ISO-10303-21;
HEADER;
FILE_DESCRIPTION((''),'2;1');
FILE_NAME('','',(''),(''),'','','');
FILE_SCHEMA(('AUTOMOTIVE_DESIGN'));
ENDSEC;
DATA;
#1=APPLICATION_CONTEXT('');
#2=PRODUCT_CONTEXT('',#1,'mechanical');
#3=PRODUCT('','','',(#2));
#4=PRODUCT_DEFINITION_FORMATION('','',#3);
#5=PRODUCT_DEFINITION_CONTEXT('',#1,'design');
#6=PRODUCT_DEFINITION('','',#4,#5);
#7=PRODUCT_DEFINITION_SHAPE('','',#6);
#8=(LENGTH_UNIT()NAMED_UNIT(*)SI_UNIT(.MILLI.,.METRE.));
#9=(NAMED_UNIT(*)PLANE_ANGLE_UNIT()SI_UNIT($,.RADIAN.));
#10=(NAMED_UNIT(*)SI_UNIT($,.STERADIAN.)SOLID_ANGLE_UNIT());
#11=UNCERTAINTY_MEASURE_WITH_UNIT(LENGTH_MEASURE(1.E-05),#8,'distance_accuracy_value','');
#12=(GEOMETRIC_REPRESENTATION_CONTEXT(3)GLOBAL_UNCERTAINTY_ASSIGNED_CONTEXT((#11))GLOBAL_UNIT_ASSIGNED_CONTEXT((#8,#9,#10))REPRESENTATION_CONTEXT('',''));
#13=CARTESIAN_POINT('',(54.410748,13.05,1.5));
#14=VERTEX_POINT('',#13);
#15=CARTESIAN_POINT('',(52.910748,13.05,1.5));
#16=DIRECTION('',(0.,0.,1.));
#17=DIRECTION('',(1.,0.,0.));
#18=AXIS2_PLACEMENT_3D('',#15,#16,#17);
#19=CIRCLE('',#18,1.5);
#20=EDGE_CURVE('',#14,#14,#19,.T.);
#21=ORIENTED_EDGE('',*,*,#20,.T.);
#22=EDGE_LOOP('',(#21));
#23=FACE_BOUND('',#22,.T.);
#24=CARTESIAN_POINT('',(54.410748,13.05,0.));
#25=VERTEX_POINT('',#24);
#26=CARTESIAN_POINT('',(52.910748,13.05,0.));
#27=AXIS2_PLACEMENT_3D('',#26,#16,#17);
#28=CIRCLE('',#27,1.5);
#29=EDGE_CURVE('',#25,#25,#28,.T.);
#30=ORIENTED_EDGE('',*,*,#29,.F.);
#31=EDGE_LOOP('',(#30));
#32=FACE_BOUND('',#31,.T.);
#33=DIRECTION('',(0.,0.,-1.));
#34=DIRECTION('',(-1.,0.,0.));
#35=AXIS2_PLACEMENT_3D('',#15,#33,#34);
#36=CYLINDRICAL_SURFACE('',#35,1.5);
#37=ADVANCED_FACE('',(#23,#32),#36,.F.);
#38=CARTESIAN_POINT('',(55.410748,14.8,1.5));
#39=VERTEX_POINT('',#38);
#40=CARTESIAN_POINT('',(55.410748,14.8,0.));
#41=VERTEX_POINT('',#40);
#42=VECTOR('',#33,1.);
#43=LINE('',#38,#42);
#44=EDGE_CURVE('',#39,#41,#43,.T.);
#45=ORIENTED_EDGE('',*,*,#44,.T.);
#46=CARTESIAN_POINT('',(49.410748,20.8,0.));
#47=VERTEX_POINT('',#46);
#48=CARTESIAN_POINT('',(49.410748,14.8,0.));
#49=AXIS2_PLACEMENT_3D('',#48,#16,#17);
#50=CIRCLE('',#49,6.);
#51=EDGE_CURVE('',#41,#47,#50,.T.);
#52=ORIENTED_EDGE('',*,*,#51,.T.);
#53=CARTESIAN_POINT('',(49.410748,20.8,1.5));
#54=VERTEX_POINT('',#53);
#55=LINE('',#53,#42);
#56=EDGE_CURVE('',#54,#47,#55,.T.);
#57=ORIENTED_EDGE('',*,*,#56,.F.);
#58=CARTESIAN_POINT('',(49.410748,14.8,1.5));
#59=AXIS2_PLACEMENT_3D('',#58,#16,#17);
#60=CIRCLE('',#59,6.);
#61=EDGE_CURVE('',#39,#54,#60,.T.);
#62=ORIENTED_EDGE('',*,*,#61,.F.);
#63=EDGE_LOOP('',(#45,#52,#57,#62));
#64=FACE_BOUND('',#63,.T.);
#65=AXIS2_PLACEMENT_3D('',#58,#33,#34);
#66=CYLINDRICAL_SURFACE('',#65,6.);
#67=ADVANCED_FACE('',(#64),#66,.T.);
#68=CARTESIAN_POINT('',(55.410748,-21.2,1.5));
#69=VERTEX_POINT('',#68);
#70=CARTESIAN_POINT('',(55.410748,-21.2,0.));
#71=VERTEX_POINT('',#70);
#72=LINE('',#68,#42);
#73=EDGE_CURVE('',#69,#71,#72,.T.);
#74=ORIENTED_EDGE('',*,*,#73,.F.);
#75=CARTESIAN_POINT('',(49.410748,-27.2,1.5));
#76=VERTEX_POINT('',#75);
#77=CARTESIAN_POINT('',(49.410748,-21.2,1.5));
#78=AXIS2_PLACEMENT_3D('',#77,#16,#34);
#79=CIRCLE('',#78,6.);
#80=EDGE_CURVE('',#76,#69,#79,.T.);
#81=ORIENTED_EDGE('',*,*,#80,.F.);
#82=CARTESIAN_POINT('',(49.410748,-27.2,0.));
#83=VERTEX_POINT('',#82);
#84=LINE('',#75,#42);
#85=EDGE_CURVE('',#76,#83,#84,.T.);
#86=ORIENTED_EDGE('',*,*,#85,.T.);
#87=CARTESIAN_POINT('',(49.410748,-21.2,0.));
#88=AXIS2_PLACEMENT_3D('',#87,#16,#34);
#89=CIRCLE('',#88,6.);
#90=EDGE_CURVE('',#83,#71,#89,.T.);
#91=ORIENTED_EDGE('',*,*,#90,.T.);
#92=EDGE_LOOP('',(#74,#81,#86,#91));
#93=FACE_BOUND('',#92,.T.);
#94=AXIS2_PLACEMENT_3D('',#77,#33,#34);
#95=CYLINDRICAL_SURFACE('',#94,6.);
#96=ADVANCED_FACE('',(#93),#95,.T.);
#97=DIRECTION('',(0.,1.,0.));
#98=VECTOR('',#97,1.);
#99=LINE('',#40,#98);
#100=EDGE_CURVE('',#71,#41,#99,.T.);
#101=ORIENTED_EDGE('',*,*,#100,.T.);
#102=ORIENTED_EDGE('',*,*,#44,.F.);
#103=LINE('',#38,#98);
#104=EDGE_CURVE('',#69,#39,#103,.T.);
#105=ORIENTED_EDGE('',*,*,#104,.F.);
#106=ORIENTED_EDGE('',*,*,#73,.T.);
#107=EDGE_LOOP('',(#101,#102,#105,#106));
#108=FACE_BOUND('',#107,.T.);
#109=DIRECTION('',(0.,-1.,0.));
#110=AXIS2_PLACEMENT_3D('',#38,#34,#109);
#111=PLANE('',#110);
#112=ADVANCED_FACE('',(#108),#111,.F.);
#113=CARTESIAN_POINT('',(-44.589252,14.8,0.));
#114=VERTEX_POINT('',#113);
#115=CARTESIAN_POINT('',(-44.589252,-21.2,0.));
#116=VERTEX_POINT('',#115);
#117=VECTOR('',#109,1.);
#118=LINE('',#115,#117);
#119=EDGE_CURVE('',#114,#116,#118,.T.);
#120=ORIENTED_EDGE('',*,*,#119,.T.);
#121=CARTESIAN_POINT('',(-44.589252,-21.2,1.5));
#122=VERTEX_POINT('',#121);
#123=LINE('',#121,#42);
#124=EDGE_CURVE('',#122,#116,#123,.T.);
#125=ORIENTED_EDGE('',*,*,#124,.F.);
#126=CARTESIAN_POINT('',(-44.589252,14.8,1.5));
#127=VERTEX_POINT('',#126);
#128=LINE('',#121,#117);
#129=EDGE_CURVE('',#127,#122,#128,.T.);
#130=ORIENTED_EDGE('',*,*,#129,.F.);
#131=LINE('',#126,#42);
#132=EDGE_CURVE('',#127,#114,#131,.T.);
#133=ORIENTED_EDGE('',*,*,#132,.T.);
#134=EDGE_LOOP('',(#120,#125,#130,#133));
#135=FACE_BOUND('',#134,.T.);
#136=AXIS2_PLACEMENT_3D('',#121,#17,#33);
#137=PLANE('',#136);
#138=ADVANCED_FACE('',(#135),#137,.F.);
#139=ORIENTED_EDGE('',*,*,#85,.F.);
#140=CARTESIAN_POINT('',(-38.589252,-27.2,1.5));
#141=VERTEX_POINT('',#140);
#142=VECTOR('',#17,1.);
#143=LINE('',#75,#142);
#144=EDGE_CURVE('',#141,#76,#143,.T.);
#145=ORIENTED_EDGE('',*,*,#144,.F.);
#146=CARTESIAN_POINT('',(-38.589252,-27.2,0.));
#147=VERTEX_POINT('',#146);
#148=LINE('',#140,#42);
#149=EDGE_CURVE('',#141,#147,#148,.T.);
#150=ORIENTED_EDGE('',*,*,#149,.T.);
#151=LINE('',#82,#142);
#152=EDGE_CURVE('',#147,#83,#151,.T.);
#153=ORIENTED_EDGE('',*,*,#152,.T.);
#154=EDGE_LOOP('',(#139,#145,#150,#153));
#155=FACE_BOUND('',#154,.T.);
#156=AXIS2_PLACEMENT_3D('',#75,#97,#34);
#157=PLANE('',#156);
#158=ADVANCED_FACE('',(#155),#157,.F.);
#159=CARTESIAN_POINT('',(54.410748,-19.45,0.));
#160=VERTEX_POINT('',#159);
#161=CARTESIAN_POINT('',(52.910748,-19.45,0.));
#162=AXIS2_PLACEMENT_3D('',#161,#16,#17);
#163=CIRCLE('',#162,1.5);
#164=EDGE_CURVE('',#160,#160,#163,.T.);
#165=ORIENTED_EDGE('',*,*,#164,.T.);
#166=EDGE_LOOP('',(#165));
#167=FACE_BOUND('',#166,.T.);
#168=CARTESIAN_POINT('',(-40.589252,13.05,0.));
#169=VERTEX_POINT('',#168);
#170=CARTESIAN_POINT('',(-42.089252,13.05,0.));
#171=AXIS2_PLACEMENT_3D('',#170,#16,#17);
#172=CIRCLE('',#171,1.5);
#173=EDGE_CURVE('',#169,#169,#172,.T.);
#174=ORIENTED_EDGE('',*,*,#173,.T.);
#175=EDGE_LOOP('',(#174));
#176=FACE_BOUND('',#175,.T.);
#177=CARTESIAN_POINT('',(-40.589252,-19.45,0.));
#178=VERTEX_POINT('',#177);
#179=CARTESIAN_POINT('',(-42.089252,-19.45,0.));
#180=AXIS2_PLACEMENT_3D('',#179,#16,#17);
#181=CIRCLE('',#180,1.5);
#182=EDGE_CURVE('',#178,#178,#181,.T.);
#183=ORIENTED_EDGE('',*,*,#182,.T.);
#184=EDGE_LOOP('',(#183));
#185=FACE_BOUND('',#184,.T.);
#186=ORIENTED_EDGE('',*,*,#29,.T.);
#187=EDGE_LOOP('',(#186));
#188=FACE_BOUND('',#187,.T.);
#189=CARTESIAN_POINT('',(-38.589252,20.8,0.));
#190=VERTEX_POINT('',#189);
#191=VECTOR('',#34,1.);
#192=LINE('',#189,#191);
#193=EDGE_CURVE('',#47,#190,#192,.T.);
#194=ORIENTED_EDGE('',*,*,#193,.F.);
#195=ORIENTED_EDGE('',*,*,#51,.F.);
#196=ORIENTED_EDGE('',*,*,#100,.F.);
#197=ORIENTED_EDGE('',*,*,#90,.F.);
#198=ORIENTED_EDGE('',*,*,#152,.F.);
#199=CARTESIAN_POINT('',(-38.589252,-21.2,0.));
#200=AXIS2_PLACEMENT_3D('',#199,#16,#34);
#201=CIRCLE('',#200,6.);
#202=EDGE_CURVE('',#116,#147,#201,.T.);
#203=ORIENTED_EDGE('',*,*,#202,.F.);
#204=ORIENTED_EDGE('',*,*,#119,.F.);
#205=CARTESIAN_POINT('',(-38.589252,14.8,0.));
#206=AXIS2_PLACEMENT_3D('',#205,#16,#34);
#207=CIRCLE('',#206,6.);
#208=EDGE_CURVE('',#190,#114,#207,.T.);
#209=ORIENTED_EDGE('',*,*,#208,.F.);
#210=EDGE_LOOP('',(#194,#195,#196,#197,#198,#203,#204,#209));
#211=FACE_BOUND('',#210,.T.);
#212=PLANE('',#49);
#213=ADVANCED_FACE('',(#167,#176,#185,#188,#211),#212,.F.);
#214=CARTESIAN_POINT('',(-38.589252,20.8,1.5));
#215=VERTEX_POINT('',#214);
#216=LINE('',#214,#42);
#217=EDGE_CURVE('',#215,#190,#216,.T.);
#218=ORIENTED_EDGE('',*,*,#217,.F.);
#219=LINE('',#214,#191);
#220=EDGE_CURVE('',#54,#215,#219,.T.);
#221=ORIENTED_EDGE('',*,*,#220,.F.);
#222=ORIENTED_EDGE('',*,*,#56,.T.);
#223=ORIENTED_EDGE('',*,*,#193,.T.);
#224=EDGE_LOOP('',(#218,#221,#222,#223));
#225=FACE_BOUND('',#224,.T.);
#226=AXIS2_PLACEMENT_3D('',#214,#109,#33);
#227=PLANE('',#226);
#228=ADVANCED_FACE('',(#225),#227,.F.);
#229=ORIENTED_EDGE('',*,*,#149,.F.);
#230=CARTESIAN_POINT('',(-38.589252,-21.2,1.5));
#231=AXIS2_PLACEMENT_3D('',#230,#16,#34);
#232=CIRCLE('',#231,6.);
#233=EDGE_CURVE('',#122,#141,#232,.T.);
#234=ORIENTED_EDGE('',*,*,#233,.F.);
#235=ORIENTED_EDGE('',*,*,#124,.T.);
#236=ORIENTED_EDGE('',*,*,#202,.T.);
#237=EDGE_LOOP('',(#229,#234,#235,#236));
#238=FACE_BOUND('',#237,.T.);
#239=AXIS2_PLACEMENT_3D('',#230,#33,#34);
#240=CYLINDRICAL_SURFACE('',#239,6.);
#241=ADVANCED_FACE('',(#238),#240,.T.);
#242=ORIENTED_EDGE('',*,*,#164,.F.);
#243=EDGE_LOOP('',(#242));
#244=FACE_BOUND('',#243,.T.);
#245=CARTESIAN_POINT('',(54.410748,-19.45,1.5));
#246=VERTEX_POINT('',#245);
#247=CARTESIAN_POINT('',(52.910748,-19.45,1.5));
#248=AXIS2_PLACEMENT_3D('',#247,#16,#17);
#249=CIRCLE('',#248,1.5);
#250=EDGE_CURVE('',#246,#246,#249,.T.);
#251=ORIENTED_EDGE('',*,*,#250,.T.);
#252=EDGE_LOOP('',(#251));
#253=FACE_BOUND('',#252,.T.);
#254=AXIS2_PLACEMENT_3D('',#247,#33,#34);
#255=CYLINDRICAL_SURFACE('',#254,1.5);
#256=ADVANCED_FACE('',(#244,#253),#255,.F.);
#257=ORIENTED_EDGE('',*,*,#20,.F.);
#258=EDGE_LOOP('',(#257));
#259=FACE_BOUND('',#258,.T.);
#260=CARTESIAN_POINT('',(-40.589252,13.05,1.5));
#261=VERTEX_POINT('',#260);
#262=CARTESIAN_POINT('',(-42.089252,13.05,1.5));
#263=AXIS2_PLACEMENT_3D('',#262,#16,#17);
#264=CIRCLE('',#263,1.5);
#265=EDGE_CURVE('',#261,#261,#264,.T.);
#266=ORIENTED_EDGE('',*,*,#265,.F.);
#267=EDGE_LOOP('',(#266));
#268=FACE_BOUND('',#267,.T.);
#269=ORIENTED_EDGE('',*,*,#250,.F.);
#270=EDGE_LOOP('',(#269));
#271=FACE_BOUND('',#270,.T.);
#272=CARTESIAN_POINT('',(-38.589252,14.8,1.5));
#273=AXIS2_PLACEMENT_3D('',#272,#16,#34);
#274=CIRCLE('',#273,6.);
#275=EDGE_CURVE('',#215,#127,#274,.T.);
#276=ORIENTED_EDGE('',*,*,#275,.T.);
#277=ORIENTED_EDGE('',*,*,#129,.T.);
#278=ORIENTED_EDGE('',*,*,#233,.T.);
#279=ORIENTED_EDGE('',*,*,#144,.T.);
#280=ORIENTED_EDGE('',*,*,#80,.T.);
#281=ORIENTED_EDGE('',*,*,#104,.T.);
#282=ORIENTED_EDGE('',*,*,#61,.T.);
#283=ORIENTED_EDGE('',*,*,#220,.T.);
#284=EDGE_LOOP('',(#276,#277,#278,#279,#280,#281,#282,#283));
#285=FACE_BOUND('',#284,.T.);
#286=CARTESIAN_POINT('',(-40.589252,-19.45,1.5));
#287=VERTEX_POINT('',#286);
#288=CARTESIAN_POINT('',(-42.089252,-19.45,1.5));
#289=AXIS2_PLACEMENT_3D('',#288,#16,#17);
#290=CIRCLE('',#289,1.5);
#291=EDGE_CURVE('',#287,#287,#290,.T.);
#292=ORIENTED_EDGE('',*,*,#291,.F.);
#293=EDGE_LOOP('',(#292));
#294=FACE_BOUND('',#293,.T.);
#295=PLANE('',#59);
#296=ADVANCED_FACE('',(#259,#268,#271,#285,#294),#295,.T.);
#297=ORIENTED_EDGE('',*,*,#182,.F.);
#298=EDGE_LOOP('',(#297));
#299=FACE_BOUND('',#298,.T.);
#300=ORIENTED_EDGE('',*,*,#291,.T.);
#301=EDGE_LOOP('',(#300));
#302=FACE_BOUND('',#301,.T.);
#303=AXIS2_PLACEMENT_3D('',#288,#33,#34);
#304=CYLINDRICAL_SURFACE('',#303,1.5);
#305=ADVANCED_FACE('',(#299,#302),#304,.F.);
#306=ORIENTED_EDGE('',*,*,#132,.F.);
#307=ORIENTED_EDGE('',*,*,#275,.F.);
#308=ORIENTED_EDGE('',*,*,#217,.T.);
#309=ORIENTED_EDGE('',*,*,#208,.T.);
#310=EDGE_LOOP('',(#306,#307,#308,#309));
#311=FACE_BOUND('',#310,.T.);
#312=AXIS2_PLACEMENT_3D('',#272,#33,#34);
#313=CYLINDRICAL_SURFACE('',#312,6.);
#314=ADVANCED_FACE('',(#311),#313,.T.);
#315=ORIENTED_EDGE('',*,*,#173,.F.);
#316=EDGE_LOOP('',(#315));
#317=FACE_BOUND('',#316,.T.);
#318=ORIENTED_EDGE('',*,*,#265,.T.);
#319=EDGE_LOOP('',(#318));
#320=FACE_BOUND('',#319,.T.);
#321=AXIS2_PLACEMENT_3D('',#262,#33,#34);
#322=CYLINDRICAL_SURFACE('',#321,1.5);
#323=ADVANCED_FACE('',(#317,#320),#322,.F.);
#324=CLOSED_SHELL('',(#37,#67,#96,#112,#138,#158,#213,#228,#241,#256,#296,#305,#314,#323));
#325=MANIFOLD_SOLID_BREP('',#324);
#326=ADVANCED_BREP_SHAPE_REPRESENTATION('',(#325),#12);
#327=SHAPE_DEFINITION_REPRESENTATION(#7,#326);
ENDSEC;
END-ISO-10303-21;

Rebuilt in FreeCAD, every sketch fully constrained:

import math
import FreeCAD as App
import Part
import Sketcher
Q = App.Units.Quantity

doc = App.newDocument("Part")
params = doc.addObject("Spreadsheet::Sheet", "Params")
for row, (alias, value) in enumerate([
    ("sketch1_diameter", "3 mm"),
    ("sketch1_radius", "6 mm"),
    ("sketch1_width", "88 mm"),
    ("sketch1_height", "36 mm"),
    ("pad1_length", "1.5 mm"),
], start=1):
    params.set(f"A{row}", alias)
    params.set(f"B{row}", "=" + value)
    params.setAlias(f"B{row}", alias)

body = doc.addObject("PartDesign::Body", "Body")

sketch1 = body.newObject("Sketcher::SketchObject", "Sketch")
sketch1.AttachmentSupport = (doc.getObject("XY_Plane"), [""])
sketch1.MapMode = "FlatFace"
sketch1.addGeometry([
    Part.LineSegment(App.Vector(49.4, 20.8, 0), App.Vector(-38.6, 20.8, 0)),
    Part.ArcOfCircle(Part.Circle(App.Vector(-38.6, 14.8, 0), App.Vector(0, 0, 1), 6), math.radians(90), math.radians(180)),
    Part.LineSegment(App.Vector(-44.6, 14.8, 0), App.Vector(-44.6, -21.2, 0)),
    Part.ArcOfCircle(Part.Circle(App.Vector(-38.6, -21.2, 0), App.Vector(0, 0, 1), 6), math.radians(180), math.radians(270)),
    Part.LineSegment(App.Vector(-38.6, -27.2, 0), App.Vector(49.4, -27.2, 0)),
    Part.ArcOfCircle(Part.Circle(App.Vector(49.4, -21.2, 0), App.Vector(0, 0, 1), 6), math.radians(-90), math.radians(0)),
    Part.LineSegment(App.Vector(55.4, -21.2, 0), App.Vector(55.4, 14.8, 0)),
    Part.ArcOfCircle(Part.Circle(App.Vector(49.4, 14.8, 0), App.Vector(0, 0, 1), 6), math.radians(0), math.radians(90)),
    Part.Circle(App.Vector(52.9, -19.4, 0), App.Vector(0, 0, 1), 1.5),
    Part.Circle(App.Vector(-42.1, -19.4, 0), App.Vector(0, 0, 1), 1.5),
    Part.Circle(App.Vector(52.9, 13.1, 0), App.Vector(0, 0, 1), 1.5),
    Part.Circle(App.Vector(-42.1, 13.1, 0), App.Vector(0, 0, 1), 1.5),
], False)
sketch1.addConstraint([
    Sketcher.Constraint("Tangent", 0, 2, 1, 1),
    Sketcher.Constraint("Tangent", 1, 2, 2, 1),
    Sketcher.Constraint("Tangent", 2, 2, 3, 1),
    Sketcher.Constraint("Tangent", 3, 2, 4, 1),
    Sketcher.Constraint("Tangent", 4, 2, 5, 1),
    Sketcher.Constraint("Tangent", 5, 2, 6, 1),
    Sketcher.Constraint("Tangent", 6, 2, 7, 1),
    Sketcher.Constraint("Tangent", 7, 2, 0, 1),
    Sketcher.Constraint("Horizontal", 0),
    Sketcher.Constraint("Vertical", 2),
    Sketcher.Constraint("Horizontal", 4),
    Sketcher.Constraint("Vertical", 6),
    Sketcher.Constraint("Equal", 1, 3),
    Sketcher.Constraint("Equal", 3, 5),
    Sketcher.Constraint("Equal", 5, 7),
    Sketcher.Constraint("Equal", 8, 9),
    Sketcher.Constraint("Equal", 9, 10),
    Sketcher.Constraint("Equal", 10, 11),
    Sketcher.Constraint("Horizontal", 8, 3, 9, 3),
    Sketcher.Constraint("Horizontal", 10, 3, 11, 3),
    Sketcher.Constraint("Vertical", 8, 3, 10, 3),
    Sketcher.Constraint("Vertical", 9, 3, 11, 3),
    Sketcher.Constraint("Diameter", 8, Q("3 mm")),
    Sketcher.Constraint("Radius", 1, Q("6 mm")),
    Sketcher.Constraint("DistanceX", 0, 2, 0, 1, Q("88 mm")),
    Sketcher.Constraint("DistanceY", 2, 2, 2, 1, Q("36 mm")),
    Sketcher.Constraint("DistanceX", 9, 3, 8, 3, Q("95 mm")),
    Sketcher.Constraint("DistanceY", -1, 1, 1, 3, Q("14.8 mm")),
    Sketcher.Constraint("DistanceX", 5, 3, 8, 3, Q("3.5 mm")),
    Sketcher.Constraint("DistanceY", 8, 3, 10, 3, Q("32.5 mm")),
    Sketcher.Constraint("DistanceY", 8, 3, -1, 1, Q("19.45 mm")),
    Sketcher.Constraint("DistanceX", 1, 3, -1, 1, Q("38.589252 mm")),
])
sketch1.setExpression("Constraints[22]", "Params.sketch1_diameter")
sketch1.setExpression("Constraints[23]", "Params.sketch1_radius")
sketch1.setExpression("Constraints[24]", "Params.sketch1_width")
sketch1.setExpression("Constraints[25]", "Params.sketch1_height")
pad1 = body.newObject("PartDesign::Pad", "Pad")
pad1.Profile = sketch1
pad1.setExpression("Length", "Params.pad1_length")

doc.recompute()
